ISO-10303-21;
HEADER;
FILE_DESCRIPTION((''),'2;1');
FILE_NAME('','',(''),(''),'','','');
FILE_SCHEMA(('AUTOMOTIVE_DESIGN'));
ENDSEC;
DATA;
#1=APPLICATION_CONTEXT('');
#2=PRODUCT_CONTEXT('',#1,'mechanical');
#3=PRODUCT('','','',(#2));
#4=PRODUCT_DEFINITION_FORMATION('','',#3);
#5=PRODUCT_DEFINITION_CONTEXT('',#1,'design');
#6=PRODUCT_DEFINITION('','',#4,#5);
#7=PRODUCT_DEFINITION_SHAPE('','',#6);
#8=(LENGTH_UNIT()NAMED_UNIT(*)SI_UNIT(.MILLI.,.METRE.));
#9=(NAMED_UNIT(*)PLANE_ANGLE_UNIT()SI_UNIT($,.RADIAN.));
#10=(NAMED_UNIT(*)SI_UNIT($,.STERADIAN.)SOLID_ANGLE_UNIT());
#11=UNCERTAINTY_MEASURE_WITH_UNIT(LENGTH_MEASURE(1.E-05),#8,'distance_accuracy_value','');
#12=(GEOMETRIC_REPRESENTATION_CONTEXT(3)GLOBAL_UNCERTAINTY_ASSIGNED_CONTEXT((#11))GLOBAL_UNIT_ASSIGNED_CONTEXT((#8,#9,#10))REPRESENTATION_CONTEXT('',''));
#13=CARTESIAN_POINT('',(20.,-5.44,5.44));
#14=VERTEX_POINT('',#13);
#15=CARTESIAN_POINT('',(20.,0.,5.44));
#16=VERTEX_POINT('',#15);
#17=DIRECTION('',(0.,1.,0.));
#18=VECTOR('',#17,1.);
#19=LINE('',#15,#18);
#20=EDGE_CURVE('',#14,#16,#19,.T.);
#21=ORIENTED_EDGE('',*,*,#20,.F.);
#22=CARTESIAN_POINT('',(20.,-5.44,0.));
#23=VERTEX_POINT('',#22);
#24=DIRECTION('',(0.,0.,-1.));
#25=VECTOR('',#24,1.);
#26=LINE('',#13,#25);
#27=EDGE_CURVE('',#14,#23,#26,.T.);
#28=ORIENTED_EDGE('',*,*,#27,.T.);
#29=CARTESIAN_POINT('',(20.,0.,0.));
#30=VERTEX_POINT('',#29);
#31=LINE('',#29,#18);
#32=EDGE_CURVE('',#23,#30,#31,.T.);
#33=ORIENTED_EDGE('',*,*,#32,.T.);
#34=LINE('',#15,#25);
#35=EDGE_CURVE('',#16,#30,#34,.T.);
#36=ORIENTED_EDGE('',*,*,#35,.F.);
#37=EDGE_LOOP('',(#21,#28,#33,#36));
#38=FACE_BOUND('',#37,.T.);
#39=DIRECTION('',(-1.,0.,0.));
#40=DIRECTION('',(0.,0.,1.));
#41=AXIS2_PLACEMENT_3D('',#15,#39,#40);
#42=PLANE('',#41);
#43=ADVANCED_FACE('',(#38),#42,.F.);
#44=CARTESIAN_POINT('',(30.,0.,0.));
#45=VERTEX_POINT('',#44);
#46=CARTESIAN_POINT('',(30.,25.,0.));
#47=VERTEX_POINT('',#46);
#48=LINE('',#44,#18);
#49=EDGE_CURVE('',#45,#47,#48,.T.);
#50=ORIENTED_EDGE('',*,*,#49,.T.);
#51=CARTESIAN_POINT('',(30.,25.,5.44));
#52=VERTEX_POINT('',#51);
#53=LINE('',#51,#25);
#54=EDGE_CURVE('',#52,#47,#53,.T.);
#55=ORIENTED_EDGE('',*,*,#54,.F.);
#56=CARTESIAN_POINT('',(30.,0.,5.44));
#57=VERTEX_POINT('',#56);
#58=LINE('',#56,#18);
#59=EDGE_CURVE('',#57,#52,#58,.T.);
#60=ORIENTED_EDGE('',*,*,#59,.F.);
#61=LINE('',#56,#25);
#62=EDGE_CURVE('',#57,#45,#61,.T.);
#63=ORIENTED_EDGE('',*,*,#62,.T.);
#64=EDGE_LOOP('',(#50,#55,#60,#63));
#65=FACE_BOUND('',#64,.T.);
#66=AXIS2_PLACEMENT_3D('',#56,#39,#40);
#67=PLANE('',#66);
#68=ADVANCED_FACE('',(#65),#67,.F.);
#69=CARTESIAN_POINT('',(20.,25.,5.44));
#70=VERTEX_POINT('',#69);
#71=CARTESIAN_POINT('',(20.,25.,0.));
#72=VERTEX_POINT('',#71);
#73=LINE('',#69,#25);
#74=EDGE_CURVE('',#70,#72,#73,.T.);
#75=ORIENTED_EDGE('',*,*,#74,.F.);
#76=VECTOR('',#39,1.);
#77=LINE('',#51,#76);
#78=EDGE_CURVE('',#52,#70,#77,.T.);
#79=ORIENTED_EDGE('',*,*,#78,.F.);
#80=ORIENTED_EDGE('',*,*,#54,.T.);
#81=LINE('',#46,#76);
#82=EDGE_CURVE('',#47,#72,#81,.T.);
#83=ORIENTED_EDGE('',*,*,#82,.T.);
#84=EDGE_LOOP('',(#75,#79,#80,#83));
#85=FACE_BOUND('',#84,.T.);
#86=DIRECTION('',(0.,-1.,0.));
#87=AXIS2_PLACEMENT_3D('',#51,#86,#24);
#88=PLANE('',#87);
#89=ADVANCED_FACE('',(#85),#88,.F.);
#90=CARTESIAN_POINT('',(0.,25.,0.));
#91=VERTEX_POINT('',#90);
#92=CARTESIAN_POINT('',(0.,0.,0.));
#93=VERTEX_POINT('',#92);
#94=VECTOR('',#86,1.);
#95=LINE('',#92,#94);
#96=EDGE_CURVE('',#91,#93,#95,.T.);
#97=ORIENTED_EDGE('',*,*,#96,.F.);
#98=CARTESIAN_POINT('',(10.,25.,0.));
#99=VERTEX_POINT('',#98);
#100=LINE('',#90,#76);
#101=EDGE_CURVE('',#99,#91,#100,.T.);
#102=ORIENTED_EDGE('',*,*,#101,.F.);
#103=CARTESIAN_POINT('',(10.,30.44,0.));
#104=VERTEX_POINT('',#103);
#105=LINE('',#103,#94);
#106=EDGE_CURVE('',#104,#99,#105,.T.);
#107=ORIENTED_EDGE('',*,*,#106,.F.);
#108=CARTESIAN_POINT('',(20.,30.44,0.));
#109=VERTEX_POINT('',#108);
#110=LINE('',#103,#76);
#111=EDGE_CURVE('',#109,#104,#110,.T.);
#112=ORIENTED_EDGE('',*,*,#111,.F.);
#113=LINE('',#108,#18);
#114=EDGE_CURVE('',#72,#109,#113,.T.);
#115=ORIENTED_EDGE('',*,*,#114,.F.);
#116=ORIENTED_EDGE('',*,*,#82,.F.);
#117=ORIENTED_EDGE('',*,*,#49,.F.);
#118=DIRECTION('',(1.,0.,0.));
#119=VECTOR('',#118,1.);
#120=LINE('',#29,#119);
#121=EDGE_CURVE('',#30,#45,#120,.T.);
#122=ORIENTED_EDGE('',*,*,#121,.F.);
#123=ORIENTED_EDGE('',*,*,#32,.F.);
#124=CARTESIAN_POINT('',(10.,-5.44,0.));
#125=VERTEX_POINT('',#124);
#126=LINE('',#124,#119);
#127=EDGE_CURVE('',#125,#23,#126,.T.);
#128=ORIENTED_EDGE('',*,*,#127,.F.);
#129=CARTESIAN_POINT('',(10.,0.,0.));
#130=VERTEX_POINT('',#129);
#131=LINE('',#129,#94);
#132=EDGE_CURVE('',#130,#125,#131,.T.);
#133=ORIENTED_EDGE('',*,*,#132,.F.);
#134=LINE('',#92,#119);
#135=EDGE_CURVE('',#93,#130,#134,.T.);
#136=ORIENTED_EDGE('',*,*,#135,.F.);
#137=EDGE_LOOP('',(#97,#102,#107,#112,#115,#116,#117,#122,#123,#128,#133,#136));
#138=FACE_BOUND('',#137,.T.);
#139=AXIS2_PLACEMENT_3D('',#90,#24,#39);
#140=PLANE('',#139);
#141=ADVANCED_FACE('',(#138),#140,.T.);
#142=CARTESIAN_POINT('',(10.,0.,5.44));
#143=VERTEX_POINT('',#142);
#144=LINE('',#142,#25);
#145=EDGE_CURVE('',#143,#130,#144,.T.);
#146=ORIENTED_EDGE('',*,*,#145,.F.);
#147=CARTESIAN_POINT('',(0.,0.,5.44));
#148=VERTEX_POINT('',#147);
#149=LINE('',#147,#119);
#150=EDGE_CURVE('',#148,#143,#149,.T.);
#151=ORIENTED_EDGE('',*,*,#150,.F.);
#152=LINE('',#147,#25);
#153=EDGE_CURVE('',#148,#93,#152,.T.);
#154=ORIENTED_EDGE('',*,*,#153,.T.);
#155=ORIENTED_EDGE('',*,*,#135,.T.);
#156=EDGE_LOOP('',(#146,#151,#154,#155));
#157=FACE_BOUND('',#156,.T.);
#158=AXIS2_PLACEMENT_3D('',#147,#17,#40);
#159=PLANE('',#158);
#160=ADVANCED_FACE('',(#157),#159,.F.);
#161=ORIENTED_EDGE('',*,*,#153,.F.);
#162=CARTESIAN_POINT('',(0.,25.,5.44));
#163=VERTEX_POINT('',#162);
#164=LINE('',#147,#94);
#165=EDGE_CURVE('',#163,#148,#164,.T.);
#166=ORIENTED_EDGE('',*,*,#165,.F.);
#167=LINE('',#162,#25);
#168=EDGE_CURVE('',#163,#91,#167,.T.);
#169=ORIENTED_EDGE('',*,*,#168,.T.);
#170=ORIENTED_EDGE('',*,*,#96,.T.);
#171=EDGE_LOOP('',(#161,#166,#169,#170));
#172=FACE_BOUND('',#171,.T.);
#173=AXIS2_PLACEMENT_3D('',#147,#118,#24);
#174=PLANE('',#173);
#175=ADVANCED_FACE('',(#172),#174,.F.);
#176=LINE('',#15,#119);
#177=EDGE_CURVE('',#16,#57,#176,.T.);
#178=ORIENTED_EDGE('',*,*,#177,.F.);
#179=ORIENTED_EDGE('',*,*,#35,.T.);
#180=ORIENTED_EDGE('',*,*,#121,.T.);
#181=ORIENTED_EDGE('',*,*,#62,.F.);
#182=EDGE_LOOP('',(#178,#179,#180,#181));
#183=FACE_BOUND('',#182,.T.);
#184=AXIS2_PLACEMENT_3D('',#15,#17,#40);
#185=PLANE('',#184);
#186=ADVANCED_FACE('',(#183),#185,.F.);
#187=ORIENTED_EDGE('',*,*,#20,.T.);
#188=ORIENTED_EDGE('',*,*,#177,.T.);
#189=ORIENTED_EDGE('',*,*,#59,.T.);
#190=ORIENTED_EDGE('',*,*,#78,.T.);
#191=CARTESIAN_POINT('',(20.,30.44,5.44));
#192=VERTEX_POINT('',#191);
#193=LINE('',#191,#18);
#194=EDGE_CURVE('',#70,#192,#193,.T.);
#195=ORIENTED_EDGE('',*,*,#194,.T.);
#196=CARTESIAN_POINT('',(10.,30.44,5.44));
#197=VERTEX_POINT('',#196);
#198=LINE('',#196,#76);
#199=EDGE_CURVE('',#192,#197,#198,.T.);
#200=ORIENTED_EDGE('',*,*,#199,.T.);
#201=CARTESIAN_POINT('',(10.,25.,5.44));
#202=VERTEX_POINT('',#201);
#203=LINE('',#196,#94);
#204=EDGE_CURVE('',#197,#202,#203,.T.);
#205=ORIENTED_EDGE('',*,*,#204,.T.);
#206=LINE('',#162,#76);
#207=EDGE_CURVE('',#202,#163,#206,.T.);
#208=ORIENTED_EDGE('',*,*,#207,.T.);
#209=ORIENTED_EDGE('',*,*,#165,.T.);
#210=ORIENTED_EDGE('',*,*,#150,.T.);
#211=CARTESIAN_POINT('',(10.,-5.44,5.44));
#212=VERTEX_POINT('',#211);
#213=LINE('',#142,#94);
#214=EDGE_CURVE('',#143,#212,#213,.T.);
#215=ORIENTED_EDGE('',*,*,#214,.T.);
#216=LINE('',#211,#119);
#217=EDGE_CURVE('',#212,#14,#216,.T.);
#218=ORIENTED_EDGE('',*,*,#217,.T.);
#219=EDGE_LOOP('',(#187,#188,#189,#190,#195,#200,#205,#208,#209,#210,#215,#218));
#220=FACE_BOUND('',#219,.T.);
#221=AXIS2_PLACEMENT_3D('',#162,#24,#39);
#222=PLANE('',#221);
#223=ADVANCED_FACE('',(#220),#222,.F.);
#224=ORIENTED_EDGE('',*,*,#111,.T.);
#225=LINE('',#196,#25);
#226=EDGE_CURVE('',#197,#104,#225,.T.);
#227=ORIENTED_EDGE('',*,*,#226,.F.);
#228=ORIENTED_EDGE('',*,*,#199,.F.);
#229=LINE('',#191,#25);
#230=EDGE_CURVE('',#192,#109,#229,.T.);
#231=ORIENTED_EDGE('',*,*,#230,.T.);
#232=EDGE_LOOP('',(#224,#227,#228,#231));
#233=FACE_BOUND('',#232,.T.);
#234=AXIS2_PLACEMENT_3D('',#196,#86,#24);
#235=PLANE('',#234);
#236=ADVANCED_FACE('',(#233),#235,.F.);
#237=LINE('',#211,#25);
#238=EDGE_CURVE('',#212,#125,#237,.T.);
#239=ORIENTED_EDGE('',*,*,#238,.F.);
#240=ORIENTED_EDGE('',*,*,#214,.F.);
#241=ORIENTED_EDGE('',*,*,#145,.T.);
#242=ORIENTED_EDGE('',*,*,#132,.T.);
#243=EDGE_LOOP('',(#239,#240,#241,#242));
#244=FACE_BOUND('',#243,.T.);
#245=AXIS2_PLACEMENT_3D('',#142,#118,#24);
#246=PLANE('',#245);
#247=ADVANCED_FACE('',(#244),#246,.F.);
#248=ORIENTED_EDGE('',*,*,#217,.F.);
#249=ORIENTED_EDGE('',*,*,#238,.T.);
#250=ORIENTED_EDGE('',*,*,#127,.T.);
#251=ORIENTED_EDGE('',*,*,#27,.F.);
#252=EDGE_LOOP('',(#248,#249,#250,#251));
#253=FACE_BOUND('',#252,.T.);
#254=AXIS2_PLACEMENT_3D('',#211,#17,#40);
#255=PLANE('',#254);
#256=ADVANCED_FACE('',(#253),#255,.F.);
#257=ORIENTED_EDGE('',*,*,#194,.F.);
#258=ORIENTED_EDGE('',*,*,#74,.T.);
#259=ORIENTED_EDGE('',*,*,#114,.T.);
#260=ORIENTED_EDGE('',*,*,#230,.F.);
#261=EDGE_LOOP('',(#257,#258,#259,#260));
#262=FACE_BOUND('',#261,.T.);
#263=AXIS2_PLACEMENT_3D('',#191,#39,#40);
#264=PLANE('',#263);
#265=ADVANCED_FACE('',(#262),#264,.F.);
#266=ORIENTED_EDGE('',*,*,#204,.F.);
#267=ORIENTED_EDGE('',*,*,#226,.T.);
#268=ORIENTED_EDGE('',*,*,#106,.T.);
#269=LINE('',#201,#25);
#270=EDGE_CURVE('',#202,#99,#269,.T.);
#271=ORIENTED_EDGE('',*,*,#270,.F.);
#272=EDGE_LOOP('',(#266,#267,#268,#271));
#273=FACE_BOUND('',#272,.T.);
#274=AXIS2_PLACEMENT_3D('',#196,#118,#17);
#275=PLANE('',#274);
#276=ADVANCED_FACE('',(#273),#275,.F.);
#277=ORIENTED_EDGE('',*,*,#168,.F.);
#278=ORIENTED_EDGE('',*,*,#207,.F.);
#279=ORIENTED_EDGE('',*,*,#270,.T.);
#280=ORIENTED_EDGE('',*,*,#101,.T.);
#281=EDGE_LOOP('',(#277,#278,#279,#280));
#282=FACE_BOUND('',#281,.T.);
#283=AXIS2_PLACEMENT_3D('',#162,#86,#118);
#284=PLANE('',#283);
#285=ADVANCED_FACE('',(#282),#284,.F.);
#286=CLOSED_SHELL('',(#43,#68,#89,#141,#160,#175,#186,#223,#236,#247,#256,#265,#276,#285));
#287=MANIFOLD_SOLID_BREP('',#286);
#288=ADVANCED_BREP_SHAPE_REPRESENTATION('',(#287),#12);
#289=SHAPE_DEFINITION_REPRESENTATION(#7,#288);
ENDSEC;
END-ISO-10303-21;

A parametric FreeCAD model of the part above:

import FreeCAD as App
import Part
import Sketcher
Q = App.Units.Quantity


def add_polygon(sketch, points):
    """Adds a closed chain of lines whose ends are joined by coincident constraints."""
    first, n = sketch.GeometryCount, len(points)
    for a, b in zip(points, points[1:] + points[:1]):
        sketch.addGeometry(Part.LineSegment(App.Vector(*a, 0), App.Vector(*b, 0)), False)
    for i in range(n):
        sketch.addConstraint(Sketcher.Constraint("Coincident", first + i, 2, first + (i + 1) % n, 1))

doc = App.newDocument("Part")
params = doc.addObject("Spreadsheet::Sheet", "Params")
for row, (alias, value) in enumerate([
    ("sketch1_width", "10 mm"),
    ("sketch1_height", "25 mm"),
    ("sketch1_height2", "5.44 mm"),
    ("pad1_length", "5.44 mm"),
], start=1):
    params.set(f"A{row}", alias)
    params.set(f"B{row}", "=" + value)
    params.setAlias(f"B{row}", alias)

body = doc.addObject("PartDesign::Body", "Body")

# Sketch on XY plane
sketch1 = body.newObject("Sketcher::SketchObject", "Sketch")
sketch1.AttachmentSupport = (doc.getObject("XY_Plane"), [""])
sketch1.MapMode = "FlatFace"
add_polygon(sketch1, [(20, 0), (30, 0), (30, 25), (20, 25), (20, 30), (10, 30), (10, 25), (0, 25), (0, 0), (10, 0), (10, -5), (20, -5)])  # lines 0-11
sketch1.addConstraint(Sketcher.Constraint("Horizontal", 0))
sketch1.addConstraint(Sketcher.Constraint("Vertical", 1))
sketch1.addConstraint(Sketcher.Constraint("Horizontal", 2))
sketch1.addConstraint(Sketcher.Constraint("Vertical", 3))
sketch1.addConstraint(Sketcher.Constraint("Horizontal", 4))
sketch1.addConstraint(Sketcher.Constraint("Vertical", 5))
sketch1.addConstraint(Sketcher.Constraint("Horizontal", 6))
sketch1.addConstraint(Sketcher.Constraint("Vertical", 7))
sketch1.addConstraint(Sketcher.Constraint("Horizontal", 8))
sketch1.addConstraint(Sketcher.Constraint("Vertical", 9))
sketch1.addConstraint(Sketcher.Constraint("Horizontal", 10))
sketch1.addConstraint(Sketcher.Constraint("Vertical", 11))
sketch1.addConstraint(Sketcher.Constraint("Coincident", 7, 2, -1, 1))
sketch1.addConstraint(Sketcher.Constraint("PointOnObject", 0, 2, -1))
sketch1.addConstraint(Sketcher.Constraint("Horizontal", 2, 2, 5, 2))
sketch1.addConstraint(Sketcher.Constraint("Vertical", 5, 2, 8, 2))
sketch1.addConstraint(Sketcher.Constraint("Vertical", 3, 2, 10, 2))
sketch1.addConstraint(Sketcher.Constraint("Equal", 2, 4))
sketch1.addConstraint(Sketcher.Constraint("Equal", 4, 6))
sketch1.addConstraint(Sketcher.Constraint("Equal", 5, 9))
sketch1.addConstraint(Sketcher.Constraint("DistanceX", 0, 1, 0, 2, Q("10 mm")))
sketch1.addConstraint(Sketcher.Constraint("DistanceY", 1, 1, 1, 2, Q("25 mm")))
sketch1.addConstraint(Sketcher.Constraint("DistanceY", 3, 1, 3, 2, Q("5.44 mm")))
sketch1.setExpression("Constraints[32]", "Params.sketch1_width")
sketch1.setExpression("Constraints[33]", "Params.sketch1_height")
sketch1.setExpression("Constraints[34]", "Params.sketch1_height2")
pad1 = body.newObject("PartDesign::Pad", "Pad")
pad1.Profile = sketch1
pad1.setExpression("Length", "Params.pad1_length")

doc.recompute()
